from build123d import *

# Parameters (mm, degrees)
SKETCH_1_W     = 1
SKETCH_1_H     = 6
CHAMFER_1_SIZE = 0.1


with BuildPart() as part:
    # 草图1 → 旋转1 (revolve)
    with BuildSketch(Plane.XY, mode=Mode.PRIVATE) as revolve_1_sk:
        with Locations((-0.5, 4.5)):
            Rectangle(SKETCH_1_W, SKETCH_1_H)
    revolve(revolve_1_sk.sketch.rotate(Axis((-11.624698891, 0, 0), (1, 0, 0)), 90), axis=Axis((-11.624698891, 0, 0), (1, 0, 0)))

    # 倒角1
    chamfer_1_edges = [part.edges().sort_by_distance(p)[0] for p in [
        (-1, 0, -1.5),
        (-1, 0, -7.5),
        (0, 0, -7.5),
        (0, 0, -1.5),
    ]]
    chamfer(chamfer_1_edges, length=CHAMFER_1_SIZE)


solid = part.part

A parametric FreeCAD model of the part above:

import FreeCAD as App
import Part
import Sketcher

V = App.Vector
Q = App.Units.Quantity


def edges_at(feature, points):
    """Names of the edges that pass closest to the given points."""
    edges = feature.Shape.Edges
    near = lambda p: min(range(len(edges)), key=lambda i: edges[i].distToShape(Part.Vertex(*p))[0])
    return sorted({f"Edge{near(p) + 1}" for p in points})


def add_polygon(sketch, points):
    """Adds a closed chain of lines whose ends are joined by coincident constraints."""
    first, n = sketch.GeometryCount, len(points)
    for a, b in zip(points, points[1:] + points[:1]):
        sketch.addGeometry(Part.LineSegment(App.Vector(*a, 0), App.Vector(*b, 0)), False)
    for i in range(n):
        sketch.addConstraint(Sketcher.Constraint("Coincident", first + i, 2, first + (i + 1) % n, 1))

doc = App.newDocument("Part")
body = doc.addObject("PartDesign::Body", "Body")

# Sketch on XY plane
sketch1 = body.newObject("Sketcher::SketchObject", "Sketch")
sketch1.AttachmentSupport = (doc.getObject("XY_Plane"), [""])
sketch1.MapMode = "FlatFace"
add_polygon(sketch1, [(-1, 7.5), (-1, 1.5), (0, 1.5), (0, 7.5)])  # lines 0-3
sketch1.addConstraint([
    Sketcher.Constraint("Vertical", 0),
    Sketcher.Constraint("Horizontal", 1),
    Sketcher.Constraint("Vertical", 2),
    Sketcher.Constraint("Horizontal", 3),
    Sketcher.Constraint("PointOnObject", 1, 2, -2),
    Sketcher.Constraint("DistanceX", 1, 1, 1, 2, Q("1 mm")),
    Sketcher.Constraint("DistanceY", 0, 2, 0, 1, Q("6 mm")),
    Sketcher.Constraint("DistanceY", -1, 1, 0, 2, Q("1.5 mm")),
])
revolution = body.newObject("PartDesign::Revolution", "Revolution")
revolution.Profile = sketch1
revolution.ReferenceAxis = (sketch1, ["H_Axis"])
revolution.Angle = 360
doc.recompute()

chamfer = body.newObject("PartDesign::Chamfer", "Chamfer")
chamfer.Base = (revolution, edges_at(revolution, [
    (-1, 0, -1.5),
    (-1, 0, -7.5),
    (0, 0, -7.5),
    (0, 0, -1.5),
]))
chamfer.Size = 0.1

doc.recompute()
